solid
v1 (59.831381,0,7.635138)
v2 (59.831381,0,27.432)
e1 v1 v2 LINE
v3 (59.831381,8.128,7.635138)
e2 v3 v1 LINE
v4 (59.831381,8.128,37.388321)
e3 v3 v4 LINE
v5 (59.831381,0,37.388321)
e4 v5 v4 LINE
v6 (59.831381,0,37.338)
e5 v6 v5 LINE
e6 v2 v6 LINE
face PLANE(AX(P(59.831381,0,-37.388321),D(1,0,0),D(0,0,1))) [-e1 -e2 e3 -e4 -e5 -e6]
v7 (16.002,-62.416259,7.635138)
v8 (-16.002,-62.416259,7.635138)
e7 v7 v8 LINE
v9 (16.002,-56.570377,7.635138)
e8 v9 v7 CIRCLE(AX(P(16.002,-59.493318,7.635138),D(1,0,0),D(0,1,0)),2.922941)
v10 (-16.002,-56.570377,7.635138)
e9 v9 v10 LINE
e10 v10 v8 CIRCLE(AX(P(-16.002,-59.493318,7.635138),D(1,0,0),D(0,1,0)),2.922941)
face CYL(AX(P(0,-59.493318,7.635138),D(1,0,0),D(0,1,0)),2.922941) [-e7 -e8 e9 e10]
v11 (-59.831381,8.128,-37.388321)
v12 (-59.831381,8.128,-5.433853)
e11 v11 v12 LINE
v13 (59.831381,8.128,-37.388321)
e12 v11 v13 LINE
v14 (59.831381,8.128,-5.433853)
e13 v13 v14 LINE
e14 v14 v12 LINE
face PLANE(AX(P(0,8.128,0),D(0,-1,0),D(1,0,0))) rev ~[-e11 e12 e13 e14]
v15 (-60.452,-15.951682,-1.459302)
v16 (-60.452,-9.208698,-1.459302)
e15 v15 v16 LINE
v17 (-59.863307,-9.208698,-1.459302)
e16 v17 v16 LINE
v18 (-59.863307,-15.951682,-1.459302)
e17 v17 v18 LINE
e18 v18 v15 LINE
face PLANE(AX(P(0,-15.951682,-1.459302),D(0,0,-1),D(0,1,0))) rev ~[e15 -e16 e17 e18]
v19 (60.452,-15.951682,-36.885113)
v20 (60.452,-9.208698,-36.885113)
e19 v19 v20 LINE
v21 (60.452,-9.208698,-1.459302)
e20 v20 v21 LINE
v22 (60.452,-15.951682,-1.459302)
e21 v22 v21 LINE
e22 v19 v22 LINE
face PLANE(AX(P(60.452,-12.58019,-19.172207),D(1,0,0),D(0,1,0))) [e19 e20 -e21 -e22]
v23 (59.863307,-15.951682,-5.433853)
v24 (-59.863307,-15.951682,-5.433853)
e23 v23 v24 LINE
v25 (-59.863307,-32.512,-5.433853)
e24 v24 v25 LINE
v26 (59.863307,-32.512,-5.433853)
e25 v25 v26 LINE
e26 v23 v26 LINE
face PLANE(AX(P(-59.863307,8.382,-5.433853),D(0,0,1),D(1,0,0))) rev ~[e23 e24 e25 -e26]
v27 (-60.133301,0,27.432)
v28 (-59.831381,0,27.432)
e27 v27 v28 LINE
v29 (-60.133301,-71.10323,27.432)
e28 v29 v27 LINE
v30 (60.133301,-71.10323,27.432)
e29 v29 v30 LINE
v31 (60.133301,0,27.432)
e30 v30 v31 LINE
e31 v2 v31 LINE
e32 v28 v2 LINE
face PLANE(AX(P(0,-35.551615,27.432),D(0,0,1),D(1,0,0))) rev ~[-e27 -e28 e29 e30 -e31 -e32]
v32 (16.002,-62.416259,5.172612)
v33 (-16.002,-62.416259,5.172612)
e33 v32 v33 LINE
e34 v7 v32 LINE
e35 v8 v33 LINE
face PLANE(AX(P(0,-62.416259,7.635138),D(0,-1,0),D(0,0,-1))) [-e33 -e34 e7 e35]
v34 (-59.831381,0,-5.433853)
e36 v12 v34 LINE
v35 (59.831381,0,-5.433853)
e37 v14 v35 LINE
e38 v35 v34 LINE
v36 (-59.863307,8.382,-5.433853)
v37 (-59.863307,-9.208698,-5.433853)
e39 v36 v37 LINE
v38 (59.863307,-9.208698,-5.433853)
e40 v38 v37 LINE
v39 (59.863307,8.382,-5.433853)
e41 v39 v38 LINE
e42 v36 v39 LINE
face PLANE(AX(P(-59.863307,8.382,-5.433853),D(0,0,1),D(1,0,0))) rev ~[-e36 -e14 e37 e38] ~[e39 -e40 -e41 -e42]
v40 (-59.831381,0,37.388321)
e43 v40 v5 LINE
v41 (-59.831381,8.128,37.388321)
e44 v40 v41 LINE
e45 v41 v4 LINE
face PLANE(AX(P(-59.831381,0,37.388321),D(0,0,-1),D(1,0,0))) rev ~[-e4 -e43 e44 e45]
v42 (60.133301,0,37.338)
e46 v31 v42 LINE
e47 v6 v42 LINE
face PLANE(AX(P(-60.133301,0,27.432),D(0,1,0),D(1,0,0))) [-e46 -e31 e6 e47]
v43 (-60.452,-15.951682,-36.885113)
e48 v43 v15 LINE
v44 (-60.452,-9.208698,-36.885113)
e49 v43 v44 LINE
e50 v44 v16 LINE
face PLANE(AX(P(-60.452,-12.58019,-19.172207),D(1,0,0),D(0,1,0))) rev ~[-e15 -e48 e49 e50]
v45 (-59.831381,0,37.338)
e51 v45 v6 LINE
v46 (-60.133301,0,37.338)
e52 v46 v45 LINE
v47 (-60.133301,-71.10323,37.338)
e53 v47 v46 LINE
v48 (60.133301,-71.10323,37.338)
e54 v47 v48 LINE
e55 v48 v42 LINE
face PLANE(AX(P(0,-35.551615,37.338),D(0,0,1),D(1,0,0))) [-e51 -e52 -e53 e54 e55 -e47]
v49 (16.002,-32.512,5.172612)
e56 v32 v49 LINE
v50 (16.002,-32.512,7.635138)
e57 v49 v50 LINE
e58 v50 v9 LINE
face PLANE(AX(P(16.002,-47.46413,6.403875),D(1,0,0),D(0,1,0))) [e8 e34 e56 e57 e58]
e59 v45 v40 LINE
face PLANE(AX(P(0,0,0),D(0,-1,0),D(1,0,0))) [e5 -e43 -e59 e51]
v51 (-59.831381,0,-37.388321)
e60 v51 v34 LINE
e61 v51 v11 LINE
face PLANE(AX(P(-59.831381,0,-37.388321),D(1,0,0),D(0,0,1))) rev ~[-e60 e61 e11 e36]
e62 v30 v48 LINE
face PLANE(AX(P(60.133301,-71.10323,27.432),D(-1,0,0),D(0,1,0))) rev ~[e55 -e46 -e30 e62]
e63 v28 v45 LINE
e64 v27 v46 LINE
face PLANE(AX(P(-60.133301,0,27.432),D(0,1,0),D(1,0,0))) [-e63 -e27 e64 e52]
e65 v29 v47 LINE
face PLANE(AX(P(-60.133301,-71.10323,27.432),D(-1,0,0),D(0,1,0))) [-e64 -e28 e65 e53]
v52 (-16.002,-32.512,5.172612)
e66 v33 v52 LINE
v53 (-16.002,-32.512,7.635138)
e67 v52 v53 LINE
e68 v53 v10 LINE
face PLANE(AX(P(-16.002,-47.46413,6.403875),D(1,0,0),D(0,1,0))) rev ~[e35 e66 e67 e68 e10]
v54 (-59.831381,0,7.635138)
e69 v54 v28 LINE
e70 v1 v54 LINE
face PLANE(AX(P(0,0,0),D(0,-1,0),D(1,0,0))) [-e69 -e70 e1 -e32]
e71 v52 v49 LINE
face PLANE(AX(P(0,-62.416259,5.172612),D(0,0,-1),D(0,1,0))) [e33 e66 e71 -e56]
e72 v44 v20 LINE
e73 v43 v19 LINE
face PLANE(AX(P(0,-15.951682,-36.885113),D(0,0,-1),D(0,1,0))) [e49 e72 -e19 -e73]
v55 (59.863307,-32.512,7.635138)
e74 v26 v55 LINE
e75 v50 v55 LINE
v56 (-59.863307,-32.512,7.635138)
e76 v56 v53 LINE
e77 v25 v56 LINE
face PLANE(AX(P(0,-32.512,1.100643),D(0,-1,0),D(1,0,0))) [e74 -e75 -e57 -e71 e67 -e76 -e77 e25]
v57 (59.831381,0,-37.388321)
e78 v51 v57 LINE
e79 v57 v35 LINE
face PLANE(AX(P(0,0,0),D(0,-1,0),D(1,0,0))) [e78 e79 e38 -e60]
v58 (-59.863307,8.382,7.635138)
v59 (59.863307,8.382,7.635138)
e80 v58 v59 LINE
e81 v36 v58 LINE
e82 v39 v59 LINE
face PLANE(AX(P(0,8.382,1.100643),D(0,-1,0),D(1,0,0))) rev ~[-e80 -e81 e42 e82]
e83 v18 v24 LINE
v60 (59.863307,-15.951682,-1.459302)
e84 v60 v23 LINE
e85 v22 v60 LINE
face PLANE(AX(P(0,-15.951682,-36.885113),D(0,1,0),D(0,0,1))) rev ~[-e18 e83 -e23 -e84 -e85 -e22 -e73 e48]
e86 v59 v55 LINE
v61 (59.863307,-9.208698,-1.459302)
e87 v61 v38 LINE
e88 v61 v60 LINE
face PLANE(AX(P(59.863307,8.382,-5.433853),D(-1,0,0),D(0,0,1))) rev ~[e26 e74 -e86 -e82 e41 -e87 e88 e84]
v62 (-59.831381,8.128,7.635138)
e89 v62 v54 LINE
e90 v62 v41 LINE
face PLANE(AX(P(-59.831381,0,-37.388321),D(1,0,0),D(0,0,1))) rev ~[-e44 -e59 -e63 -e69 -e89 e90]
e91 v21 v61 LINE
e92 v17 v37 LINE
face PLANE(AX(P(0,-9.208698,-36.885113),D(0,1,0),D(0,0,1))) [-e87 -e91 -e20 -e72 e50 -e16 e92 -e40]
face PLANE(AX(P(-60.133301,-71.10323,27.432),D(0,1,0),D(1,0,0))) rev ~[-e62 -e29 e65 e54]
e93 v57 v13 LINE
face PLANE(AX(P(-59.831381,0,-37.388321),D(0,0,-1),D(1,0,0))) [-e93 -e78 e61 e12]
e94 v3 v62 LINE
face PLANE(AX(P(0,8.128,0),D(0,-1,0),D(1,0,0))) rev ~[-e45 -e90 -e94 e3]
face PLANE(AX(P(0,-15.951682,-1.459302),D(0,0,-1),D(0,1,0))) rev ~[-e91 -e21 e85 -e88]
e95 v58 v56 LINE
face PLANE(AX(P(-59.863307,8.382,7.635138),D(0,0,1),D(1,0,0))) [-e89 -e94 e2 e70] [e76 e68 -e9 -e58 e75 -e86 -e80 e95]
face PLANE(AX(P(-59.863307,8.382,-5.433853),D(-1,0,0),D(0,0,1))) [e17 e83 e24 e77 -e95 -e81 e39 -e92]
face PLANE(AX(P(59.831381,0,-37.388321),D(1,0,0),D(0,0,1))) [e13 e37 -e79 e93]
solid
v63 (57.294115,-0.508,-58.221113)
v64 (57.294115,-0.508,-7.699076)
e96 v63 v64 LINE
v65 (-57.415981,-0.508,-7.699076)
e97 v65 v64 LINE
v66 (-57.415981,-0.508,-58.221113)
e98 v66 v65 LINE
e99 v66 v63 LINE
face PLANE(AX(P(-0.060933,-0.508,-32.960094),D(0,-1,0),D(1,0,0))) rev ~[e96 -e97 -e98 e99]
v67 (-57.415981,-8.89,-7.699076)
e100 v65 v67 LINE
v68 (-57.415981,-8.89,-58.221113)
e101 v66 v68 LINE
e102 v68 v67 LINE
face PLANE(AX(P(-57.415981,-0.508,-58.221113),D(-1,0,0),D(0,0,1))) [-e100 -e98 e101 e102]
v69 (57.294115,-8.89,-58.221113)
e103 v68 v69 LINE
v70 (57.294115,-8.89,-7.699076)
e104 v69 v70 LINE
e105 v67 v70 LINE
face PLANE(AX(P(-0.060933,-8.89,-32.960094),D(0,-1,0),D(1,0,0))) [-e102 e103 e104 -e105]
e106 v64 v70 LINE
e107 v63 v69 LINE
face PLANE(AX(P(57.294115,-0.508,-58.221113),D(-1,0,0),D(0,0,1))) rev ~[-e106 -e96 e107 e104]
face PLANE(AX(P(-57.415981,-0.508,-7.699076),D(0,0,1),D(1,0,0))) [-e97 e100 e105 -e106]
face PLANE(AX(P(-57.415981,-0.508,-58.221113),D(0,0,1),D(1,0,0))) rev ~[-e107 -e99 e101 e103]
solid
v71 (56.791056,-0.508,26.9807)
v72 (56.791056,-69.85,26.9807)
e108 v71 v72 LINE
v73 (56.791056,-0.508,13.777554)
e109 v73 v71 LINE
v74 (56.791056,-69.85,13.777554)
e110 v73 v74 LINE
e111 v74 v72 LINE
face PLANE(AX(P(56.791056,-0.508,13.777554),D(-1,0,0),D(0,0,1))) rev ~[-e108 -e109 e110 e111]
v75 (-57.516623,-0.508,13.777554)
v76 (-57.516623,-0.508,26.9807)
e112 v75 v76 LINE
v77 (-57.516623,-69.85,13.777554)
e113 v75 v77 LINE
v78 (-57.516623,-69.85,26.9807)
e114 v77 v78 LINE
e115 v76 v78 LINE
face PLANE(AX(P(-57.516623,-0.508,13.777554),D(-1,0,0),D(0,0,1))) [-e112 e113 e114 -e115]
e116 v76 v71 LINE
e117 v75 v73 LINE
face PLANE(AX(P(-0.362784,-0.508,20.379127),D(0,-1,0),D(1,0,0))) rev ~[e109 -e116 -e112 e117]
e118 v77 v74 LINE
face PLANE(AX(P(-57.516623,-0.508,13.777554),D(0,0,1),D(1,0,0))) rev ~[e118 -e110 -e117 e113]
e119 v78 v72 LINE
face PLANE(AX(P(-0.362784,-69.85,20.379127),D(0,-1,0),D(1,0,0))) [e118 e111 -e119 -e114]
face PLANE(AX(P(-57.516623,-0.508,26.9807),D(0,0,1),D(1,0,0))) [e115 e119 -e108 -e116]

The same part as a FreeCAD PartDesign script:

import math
import FreeCAD as App
import Part
import Sketcher

V = App.Vector
Q = App.Units.Quantity

doc = App.newDocument("Part")
body = doc.addObject("PartDesign::Body", "Body")

# Sketch on XZ plane
sketch1 = doc.addObject("Sketcher::SketchObject", "Sketch")
body.addObject(sketch1)
sketch1.AttachmentSupport = (doc.XZ_Plane, [""])
sketch1.MapMode = "FlatFace"
sketch1.addGeometry([
    Part.LineSegment(V(-60, 37, 0), V(-60, -37, 0)),
    Part.LineSegment(V(-60, -37, 0), V(60, -37, 0)),
    Part.LineSegment(V(60, -37, 0), V(60, 37, 0)),
    Part.LineSegment(V(60, 37, 0), V(-60, 37, 0)),
], False)
sketch1.addConstraint([
    Sketcher.Constraint("Coincident", 0, 2, 1, 1),
    Sketcher.Constraint("Coincident", 1, 2, 2, 1),
    Sketcher.Constraint("Coincident", 2, 2, 3, 1),
    Sketcher.Constraint("Coincident", 3, 2, 0, 1),
    Sketcher.Constraint("Vertical", 0),
    Sketcher.Constraint("Horizontal", 1),
    Sketcher.Constraint("Vertical", 2),
    Sketcher.Constraint("Horizontal", 3),
    Sketcher.Constraint("Symmetric", 0, 2, 2, 2, -1, 1),
    Sketcher.Constraint("DistanceX", 1, 1, 1, 2, 119.662762),
    Sketcher.Constraint("DistanceY", 0, 2, 0, 1, 74.776642),
])
pad1 = doc.addObject("PartDesign::Pad", "Pad")
body.addObject(pad1)
pad1.Profile = sketch1
pad1.Length = Q("0.32 in")
pad1.Reversed = True

# Sketch on XZ plane
sketch2 = doc.addObject("Sketcher::SketchObject", "Sketch001")
body.addObject(sketch2)
sketch2.AttachmentSupport = (doc.XZ_Plane, [""])
sketch2.MapMode = "FlatFace"
sketch2.AttachmentOffset = App.Placement(V(0, 0, -0.33 * 25.4), App.Rotation())
sketch2.addGeometry([
    Part.LineSegment(V(-60, 8, 0), V(-60, -5, 0)),
    Part.LineSegment(V(-60, -5, 0), V(60, -5, 0)),
    Part.LineSegment(V(60, -5, 0), V(60, 8, 0)),
    Part.LineSegment(V(60, 8, 0), V(-60, 8, 0)),
], False)
sketch2.addConstraint([
    Sketcher.Constraint("Coincident", 0, 2, 1, 1),
    Sketcher.Constraint("Coincident", 1, 2, 2, 1),
    Sketcher.Constraint("Coincident", 2, 2, 3, 1),
    Sketcher.Constraint("Coincident", 3, 2, 0, 1),
    Sketcher.Constraint("Vertical", 0),
    Sketcher.Constraint("Horizontal", 1),
    Sketcher.Constraint("Vertical", 2),
    Sketcher.Constraint("Horizontal", 3),
    Sketcher.Constraint("DistanceY", 0, 2, 0, 1, 13.068991),
    Sketcher.Constraint("DistanceX", 1, 1, 1, 2, 119.726613),
    Sketcher.Constraint("DistanceY", -1, 1, 2, 2, 7.635138),
    Sketcher.Constraint("DistanceX", 0, 2, -1, 1, 59.863307),
])
pad2 = doc.addObject("PartDesign::Pad", "Pad001")
body.addObject(pad2)
pad2.Profile = sketch2
pad2.Length = Q("1.61 in")

# Sketch on YZ plane
sketch3 = doc.addObject("Sketcher::SketchObject", "Sketch002")
body.addObject(sketch3)
sketch3.AttachmentSupport = (doc.YZ_Plane, [""])
sketch3.MapMode = "FlatFace"
sketch3.addGeometry([
    Part.LineSegment(V(-16, -1, 0), V(-16, -37, 0)),
    Part.LineSegment(V(-16, -37, 0), V(-9, -37, 0)),
    Part.LineSegment(V(-9, -37, 0), V(-9, -1, 0)),
    Part.LineSegment(V(-9, -1, 0), V(-16, -1, 0)),
], False)
sketch3.addConstraint([
    Sketcher.Constraint("Coincident", 0, 2, 1, 1),
    Sketcher.Constraint("Coincident", 1, 2, 2, 1),
    Sketcher.Constraint("Coincident", 2, 2, 3, 1),
    Sketcher.Constraint("Coincident", 3, 2, 0, 1),
    Sketcher.Constraint("Vertical", 0),
    Sketcher.Constraint("Horizontal", 1),
    Sketcher.Constraint("Vertical", 2),
    Sketcher.Constraint("Horizontal", 3),
    Sketcher.Constraint("DistanceY", 0, 2, 0, 1, 35.425811),
    Sketcher.Constraint("DistanceY", 2, 2, -1, 1, 1.459302),
    Sketcher.Constraint("DistanceX", 1, 1, 1, 2, 6.742984),
    Sketcher.Constraint("DistanceX", 0, 2, -1, 1, 15.951682),
])
pad3 = doc.addObject("PartDesign::Pad", "Pad002")
body.addObject(pad3)
pad3.Profile = sketch3
pad3.Length = Q("4.76 in")
pad3.Midplane = True

# Sketch on XY plane
sketch4 = doc.addObject("Sketcher::SketchObject", "Sketch003")
body.addObject(sketch4)
sketch4.AttachmentSupport = (doc.XY_Plane, [""])
sketch4.MapMode = "FlatFace"
sketch4.AttachmentOffset = App.Placement(V(0, 0, 1.08 * 25.4), App.Rotation())
sketch4.addGeometry([
    Part.LineSegment(V(-60, 0, 0), V(-60, -71, 0)),
    Part.LineSegment(V(-60, -71, 0), V(60, -71, 0)),
    Part.LineSegment(V(60, -71, 0), V(60, 0, 0)),
    Part.LineSegment(V(60, 0, 0), V(-60, 0, 0)),
], False)
sketch4.addConstraint([
    Sketcher.Constraint("Coincident", 0, 2, 1, 1),
    Sketcher.Constraint("Coincident", 1, 2, 2, 1),
    Sketcher.Constraint("Coincident", 2, 2, 3, 1),
    Sketcher.Constraint("Coincident", 3, 2, 0, 1),
    Sketcher.Constraint("Vertical", 0),
    Sketcher.Constraint("Horizontal", 1),
    Sketcher.Constraint("Vertical", 2),
    Sketcher.Constraint("Horizontal", 3),
    Sketcher.Constraint("Symmetric", 2, 2, 3, 2, -1, 1),
    Sketcher.Constraint("DistanceX", 1, 1, 1, 2, 120.266601),
    Sketcher.Constraint("DistanceY", 0, 2, 0, 1, 71.10323),
])
pad4 = doc.addObject("PartDesign::Pad", "Pad003")
body.addObject(pad4)
pad4.Profile = sketch4
pad4.Length = Q("0.39 in")

# Sketch on YZ plane
sketch5 = doc.addObject("Sketcher::SketchObject", "Sketch004")
body.addObject(sketch5)
sketch5.AttachmentSupport = (doc.YZ_Plane, [""])
sketch5.MapMode = "FlatFace"
sketch5.addGeometry([
    Part.LineSegment(V(-62.4, 5.2, 0), V(-32.5, 5.2, 0)),  # 0
    Part.LineSegment(V(-32.5, 5.2, 0), V(-32.5, 7.6, 0)),  # 1
    Part.LineSegment(V(-32.5, 7.6, 0), V(-56.6, 7.6, 0)),  # 2
    Part.ArcOfCircle(Part.Circle(V(-59.5, 7.6, 0), V(0, 0, 1), 2.9), math.radians(0), math.radians(180)),  # 3
    Part.LineSegment(V(-62.4, 7.6, 0), V(-62.4, 5.2, 0)),  # 4
], False)
sketch5.addConstraint([
    Sketcher.Constraint("Coincident", 0, 2, 1, 1),
    Sketcher.Constraint("Coincident", 1, 2, 2, 1),
    Sketcher.Constraint("Coincident", 2, 2, 3, 1),
    Sketcher.Constraint("Tangent", 3, 2, 4, 1),
    Sketcher.Constraint("Coincident", 4, 2, 0, 1),
    Sketcher.Constraint("Horizontal", 0),
    Sketcher.Constraint("Vertical", 1),
    Sketcher.Constraint("Horizontal", 2),
    Sketcher.Constraint("Vertical", 4),
    Sketcher.Constraint("Horizontal", 3, 3, 1, 2),
    Sketcher.Constraint("DistanceX", 0, 2, -1, 1, Q("1.28 in")),
    Sketcher.Constraint("Radius", 3, 2.922941),
    Sketcher.Constraint("DistanceX", 0, 1, 0, 2, 29.904259),
    Sketcher.Constraint("DistanceY", 1, 1, 1, 2, 2.462526),
    Sketcher.Constraint("DistanceY", -1, 1, 3, 3, 7.635138),
])
pad5 = doc.addObject("PartDesign::Pad", "Pad004")
body.addObject(pad5)
pad5.Profile = sketch5
pad5.Length = Q("1.26 in")
pad5.Midplane = True
body2 = doc.addObject("PartDesign::Body", "Body001")

# Sketch on XZ plane
sketch6 = doc.addObject("Sketcher::SketchObject", "Sketch005")
body2.addObject(sketch6)
sketch6.AttachmentSupport = (doc.getObject("XZ_Plane001"), [""])
sketch6.MapMode = "FlatFace"
sketch6.AttachmentOffset = App.Placement(V(0, 0, 0.02 * 25.4), App.Rotation())
sketch6.addGeometry([
    Part.LineSegment(V(-57, -8, 0), V(-57, -58, 0)),
    Part.LineSegment(V(-57, -58, 0), V(57, -58, 0)),
    Part.LineSegment(V(57, -58, 0), V(57, -8, 0)),
    Part.LineSegment(V(57, -8, 0), V(-57, -8, 0)),
], False)
sketch6.addConstraint([
    Sketcher.Constraint("Coincident", 0, 2, 1, 1),
    Sketcher.Constraint("Coincident", 1, 2, 2, 1),
    Sketcher.Constraint("Coincident", 2, 2, 3, 1),
    Sketcher.Constraint("Coincident", 3, 2, 0, 1),
    Sketcher.Constraint("Vertical", 0),
    Sketcher.Constraint("Horizontal", 1),
    Sketcher.Constraint("Vertical", 2),
    Sketcher.Constraint("Horizontal", 3),
    Sketcher.Constraint("DistanceX", 1, 1, 1, 2, 114.710096),
    Sketcher.Constraint("DistanceY", 0, 2, 0, 1, 50.522037),
    Sketcher.Constraint("DistanceX", 0, 2, -1, 1, 57.415981),
    Sketcher.Constraint("DistanceY", 0, 2, -1, 1, 58.221113),
])
pad6 = doc.addObject("PartDesign::Pad", "Pad005")
body2.addObject(pad6)
pad6.Profile = sketch6
pad6.Length = Q("0.33 in")
body3 = doc.addObject("PartDesign::Body", "Body002")

# Sketch on XZ plane
sketch7 = doc.addObject("Sketcher::SketchObject", "Sketch006")
body3.addObject(sketch7)
sketch7.AttachmentSupport = (doc.getObject("XZ_Plane002"), [""])
sketch7.MapMode = "FlatFace"
sketch7.AttachmentOffset = App.Placement(V(0, 0, 0.02 * 25.4), App.Rotation())
sketch7.addGeometry([
    Part.LineSegment(V(-58, 27, 0), V(-58, 14, 0)),
    Part.LineSegment(V(-58, 14, 0), V(57, 14, 0)),
    Part.LineSegment(V(57, 14, 0), V(57, 27, 0)),
    Part.LineSegment(V(57, 27, 0), V(-58, 27, 0)),
], False)
sketch7.addConstraint([
    Sketcher.Constraint("Coincident", 0, 2, 1, 1),
    Sketcher.Constraint("Coincident", 1, 2, 2, 1),
    Sketcher.Constraint("Coincident", 2, 2, 3, 1),
    Sketcher.Constraint("Coincident", 3, 2, 0, 1),
    Sketcher.Constraint("Vertical", 0),
    Sketcher.Constraint("Horizontal", 1),
    Sketcher.Constraint("Vertical", 2),
    Sketcher.Constraint("Horizontal", 3),
    Sketcher.Constraint("DistanceX", 1, 1, 1, 2, 114.307679),
    Sketcher.Constraint("DistanceY", -1, 1, 2, 2, 26.9807),
    Sketcher.Constraint("DistanceY", 0, 2, 0, 1, 13.203146),
    Sketcher.Constraint("DistanceX", 0, 2, -1, 1, 57.516623),
])
pad7 = doc.addObject("PartDesign::Pad", "Pad006")
body3.addObject(pad7)
pad7.Profile = sketch7
pad7.Length = Q("2.73 in")

doc.recompute()
